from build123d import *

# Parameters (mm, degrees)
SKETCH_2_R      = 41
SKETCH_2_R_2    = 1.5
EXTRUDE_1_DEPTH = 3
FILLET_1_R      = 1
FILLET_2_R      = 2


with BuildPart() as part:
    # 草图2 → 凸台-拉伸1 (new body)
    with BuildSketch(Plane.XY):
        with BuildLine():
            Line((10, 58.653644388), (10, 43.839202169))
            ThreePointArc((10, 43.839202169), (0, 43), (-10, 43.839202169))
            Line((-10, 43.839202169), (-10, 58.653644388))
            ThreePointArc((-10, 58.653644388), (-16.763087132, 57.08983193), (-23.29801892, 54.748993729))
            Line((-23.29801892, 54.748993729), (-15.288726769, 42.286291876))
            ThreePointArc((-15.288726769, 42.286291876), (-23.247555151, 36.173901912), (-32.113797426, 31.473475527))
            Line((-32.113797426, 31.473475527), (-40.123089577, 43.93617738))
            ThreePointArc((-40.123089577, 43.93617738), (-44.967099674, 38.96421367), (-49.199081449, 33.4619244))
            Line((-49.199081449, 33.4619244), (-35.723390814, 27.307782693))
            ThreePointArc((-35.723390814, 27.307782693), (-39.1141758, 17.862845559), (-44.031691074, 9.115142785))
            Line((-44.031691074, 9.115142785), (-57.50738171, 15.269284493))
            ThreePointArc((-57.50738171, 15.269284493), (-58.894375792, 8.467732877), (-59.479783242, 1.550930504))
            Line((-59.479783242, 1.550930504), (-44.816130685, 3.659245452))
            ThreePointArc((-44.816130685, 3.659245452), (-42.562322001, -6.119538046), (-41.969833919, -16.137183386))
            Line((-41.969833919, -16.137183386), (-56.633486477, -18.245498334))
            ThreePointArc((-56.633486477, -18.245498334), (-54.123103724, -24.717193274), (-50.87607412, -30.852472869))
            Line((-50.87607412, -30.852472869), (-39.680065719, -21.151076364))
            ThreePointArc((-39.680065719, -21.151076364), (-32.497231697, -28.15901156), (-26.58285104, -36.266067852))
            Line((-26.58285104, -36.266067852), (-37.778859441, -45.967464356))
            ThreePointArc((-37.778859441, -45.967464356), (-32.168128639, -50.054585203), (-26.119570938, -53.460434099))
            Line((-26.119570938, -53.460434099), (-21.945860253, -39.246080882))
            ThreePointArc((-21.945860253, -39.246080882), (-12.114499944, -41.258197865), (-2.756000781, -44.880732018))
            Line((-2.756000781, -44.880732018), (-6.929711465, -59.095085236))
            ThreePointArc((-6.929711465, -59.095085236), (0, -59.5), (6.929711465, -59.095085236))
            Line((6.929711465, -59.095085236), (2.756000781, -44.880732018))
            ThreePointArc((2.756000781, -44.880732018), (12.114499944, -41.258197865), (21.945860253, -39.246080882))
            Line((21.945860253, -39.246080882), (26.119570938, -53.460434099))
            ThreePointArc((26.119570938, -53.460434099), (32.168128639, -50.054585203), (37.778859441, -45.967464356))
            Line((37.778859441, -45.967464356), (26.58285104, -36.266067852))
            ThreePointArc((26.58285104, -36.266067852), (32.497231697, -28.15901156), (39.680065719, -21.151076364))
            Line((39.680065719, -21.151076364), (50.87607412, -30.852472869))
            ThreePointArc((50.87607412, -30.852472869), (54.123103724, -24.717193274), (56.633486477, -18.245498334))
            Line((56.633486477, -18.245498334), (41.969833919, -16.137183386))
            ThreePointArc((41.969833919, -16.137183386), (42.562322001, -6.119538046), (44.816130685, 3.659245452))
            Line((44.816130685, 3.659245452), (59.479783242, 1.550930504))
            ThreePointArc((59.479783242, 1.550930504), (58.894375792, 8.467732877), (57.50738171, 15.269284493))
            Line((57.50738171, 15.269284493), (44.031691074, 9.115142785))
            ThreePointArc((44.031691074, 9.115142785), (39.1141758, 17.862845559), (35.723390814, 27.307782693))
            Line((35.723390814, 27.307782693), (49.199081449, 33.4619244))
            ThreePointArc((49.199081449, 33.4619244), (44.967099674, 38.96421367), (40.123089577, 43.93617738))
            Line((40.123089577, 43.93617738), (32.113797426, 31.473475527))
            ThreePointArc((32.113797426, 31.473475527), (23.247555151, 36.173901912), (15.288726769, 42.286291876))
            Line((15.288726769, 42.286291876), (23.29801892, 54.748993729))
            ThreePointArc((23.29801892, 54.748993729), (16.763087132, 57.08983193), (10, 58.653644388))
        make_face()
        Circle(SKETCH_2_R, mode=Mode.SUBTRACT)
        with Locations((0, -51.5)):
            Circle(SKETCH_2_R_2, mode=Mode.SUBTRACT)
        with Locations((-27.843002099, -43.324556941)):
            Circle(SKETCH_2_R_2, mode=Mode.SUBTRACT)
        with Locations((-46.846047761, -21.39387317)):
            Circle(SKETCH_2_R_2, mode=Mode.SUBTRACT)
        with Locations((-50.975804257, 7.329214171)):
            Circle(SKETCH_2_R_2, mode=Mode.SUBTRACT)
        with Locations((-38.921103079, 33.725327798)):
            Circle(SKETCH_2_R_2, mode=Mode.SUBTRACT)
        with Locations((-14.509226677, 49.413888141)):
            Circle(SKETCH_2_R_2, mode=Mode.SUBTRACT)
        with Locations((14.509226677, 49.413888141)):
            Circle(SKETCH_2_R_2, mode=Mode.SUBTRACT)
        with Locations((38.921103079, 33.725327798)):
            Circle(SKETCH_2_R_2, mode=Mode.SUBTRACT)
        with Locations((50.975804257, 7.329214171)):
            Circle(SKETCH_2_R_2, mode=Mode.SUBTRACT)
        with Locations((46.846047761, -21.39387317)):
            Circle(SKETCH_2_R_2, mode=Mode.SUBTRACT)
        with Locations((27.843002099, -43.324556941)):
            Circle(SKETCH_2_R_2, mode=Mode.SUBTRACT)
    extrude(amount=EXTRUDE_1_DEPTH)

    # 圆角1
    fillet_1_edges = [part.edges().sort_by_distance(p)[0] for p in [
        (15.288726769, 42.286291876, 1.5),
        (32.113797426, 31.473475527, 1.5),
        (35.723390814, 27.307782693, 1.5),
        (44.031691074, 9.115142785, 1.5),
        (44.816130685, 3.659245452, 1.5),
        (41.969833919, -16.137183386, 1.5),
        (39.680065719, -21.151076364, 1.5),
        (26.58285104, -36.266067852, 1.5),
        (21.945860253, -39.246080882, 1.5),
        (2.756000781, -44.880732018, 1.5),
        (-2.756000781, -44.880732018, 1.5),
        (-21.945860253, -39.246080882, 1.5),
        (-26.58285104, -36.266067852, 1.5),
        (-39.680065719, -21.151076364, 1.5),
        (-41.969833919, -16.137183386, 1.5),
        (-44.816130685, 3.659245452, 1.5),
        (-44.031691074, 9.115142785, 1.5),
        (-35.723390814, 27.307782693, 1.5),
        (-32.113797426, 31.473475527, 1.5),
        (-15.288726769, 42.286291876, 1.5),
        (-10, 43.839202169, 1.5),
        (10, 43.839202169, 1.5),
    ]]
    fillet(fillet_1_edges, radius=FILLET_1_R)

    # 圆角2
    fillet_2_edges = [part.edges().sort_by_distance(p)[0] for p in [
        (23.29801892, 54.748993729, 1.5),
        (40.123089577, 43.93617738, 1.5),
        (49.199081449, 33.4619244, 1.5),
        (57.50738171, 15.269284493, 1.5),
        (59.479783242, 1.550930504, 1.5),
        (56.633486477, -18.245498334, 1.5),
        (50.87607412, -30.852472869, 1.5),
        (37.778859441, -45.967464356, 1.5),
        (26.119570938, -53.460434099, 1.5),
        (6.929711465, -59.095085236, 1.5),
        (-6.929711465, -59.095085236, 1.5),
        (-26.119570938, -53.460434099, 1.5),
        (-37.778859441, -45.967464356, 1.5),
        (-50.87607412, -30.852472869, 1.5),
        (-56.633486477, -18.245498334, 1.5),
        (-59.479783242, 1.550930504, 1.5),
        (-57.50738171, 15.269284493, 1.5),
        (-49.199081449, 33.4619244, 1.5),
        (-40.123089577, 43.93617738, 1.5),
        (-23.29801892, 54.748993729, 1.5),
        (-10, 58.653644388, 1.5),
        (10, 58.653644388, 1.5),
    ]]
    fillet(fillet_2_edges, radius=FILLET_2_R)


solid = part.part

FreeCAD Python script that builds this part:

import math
import FreeCAD as App
import Part
import Sketcher

V = App.Vector


def edges_at(feature, points):
    """Names of the edges that pass closest to the given points."""
    edges = feature.Shape.Edges
    near = lambda p: min(range(len(edges)), key=lambda i: edges[i].distToShape(Part.Vertex(*p))[0])
    return sorted({f"Edge{near(p) + 1}" for p in points})

doc = App.newDocument("Part")
params = doc.addObject("Spreadsheet::Sheet", "Params")
for row, (alias, value) in enumerate([
    ("sketch1_diameter", "3 mm"),
    ("sketch1_diameter2", "82 mm"),
    ("sketch1_radius", "60 mm"),
    ("sketch1_radius2", "59.5 mm"),
    ("pad1_length", "3 mm"),
    ("fillet_radius", "1 mm"),
    ("fillet2_radius", "2 mm"),
], start=1):
    params.set(f"A{row}", alias)
    params.set(f"B{row}", "=" + value)
    params.setAlias(f"B{row}", alias)

body = doc.addObject("PartDesign::Body", "Body")

# Sketch on XY plane
sketch1 = body.newObject("Sketcher::SketchObject", "Sketch")
sketch1.AttachmentSupport = (doc.getObject("XY_Plane"), [""])
sketch1.MapMode = "FlatFace"
sketch1.addGeometry([
    Part.LineSegment(V(10, 58.653644, 0), V(10, 43.839202, 0)),  # 0
    Part.ArcOfCircle(Part.Circle(V(0, 103, 0), V(0, 0, 1), 60), math.radians(-99.594068), math.radians(-80.405932)),  # 1
    Part.LineSegment(V(-10, 43.839202, 0), V(-10, 58.653644, 0)),  # 2
    Part.ArcOfCircle(Part.Circle(V(0, 0, 0), V(0, 0, 1), 59.5), math.radians(99.675463), math.radians(113.05181)),  # 3
    Part.LineSegment(V(-23.298019, 54.748994, 0), V(-15.288727, 42.286292, 0)),  # 4
    Part.ArcOfCircle(Part.Circle(V(-55.686004, 86.649114, 0), V(0, 0, 1), 60), math.radians(-66.866796), math.radians(-47.678659)),  # 5
    Part.LineSegment(V(-32.113797, 31.473476, 0), V(-40.12309, 43.936177, 0)),  # 6
    Part.ArcOfCircle(Part.Circle(V(0, 0, 0), V(0, 0, 1), 59.5), math.radians(132.402735), math.radians(145.779083)),  # 7
    Part.LineSegment(V(-49.199081, 33.461924, 0), V(-35.723391, 27.307783, 0)),  # 8
    Part.ArcOfCircle(Part.Circle(V(-93.692095, 42.787746, 0), V(0, 0, 1), 60), math.radians(-34.139523), math.radians(-14.951386)),  # 9
    Part.LineSegment(V(-44.031691, 9.115143, 0), V(-57.507382, 15.269284, 0)),  # 10
    Part.ArcOfCircle(Part.Circle(V(0, 0, 0), V(0, 0, 1), 59.5), math.radians(165.130008), math.radians(178.506356)),  # 11
    Part.LineSegment(V(-59.479783, 1.550931, 0), V(-44.816131, 3.659245, 0)),  # 12
    Part.ArcOfCircle(Part.Circle(V(-101.951609, -14.658428, 0), V(0, 0, 1), 60), math.radians(-1.41225), math.radians(17.775886)),  # 13
    Part.LineSegment(V(-41.969834, -16.137183, 0), V(-56.633486, -18.245498, 0)),  # 14
    Part.ArcOfCircle(Part.Circle(V(0, 0, 0), V(0, 0, 1), 59.5), math.radians(-162.142719), math.radians(-148.766372)),  # 15
    Part.LineSegment(V(-50.876074, -30.852473, 0), V(-39.680066, -21.151076, 0)),  # 16
    Part.ArcOfCircle(Part.Circle(V(-77.842206, -67.450656, 0), V(0, 0, 1), 60), math.radians(31.315023), math.radians(50.503159)),  # 17
    Part.LineSegment(V(-26.582851, -36.266068, 0), V(-37.778859, -45.967464, 0)),  # 18
    Part.ArcOfCircle(Part.Circle(V(0, 0, 0), V(0, 0, 1), 59.5), math.radians(-129.415447), math.radians(-116.039099)),  # 19
    Part.LineSegment(V(-26.119571, -53.460434, 0), V(-21.94586, -39.246081, 0)),  # 20
    Part.ArcOfCircle(Part.Circle(V(-29.018453, -98.827776, 0), V(0, 0, 1), 60), math.radians(64.042295), math.radians(83.230432)),  # 21
    Part.LineSegment(V(-2.756001, -44.880732, 0), V(-6.929711, -59.095085, 0)),  # 22
    Part.ArcOfCircle(Part.Circle(V(0, 0, 0), V(0, 0, 1), 59.5), math.radians(-96.688174), math.radians(-83.311826)),  # 23
    Part.LineSegment(V(6.929711, -59.095085, 0), V(2.756001, -44.880732, 0)),  # 24
    Part.ArcOfCircle(Part.Circle(V(29.018453, -98.827776, 0), V(0, 0, 1), 60), math.radians(96.769568), math.radians(115.957705)),  # 25
    Part.LineSegment(V(21.94586, -39.246081, 0), V(26.119571, -53.460434, 0)),  # 26
    Part.ArcOfCircle(Part.Circle(V(0, 0, 0), V(0, 0, 1), 59.5), math.radians(-63.960901), math.radians(-50.584553)),  # 27
    Part.LineSegment(V(37.778859, -45.967464, 0), V(26.582851, -36.266068, 0)),  # 28
    Part.ArcOfCircle(Part.Circle(V(77.842206, -67.450656, 0), V(0, 0, 1), 60), math.radians(129.496841), math.radians(148.684977)),  # 29
    Part.LineSegment(V(39.680066, -21.151076, 0), V(50.876074, -30.852473, 0)),  # 30
    Part.ArcOfCircle(Part.Circle(V(0, 0, 0), V(0, 0, 1), 59.5), math.radians(-31.233628), math.radians(-17.857281)),  # 31
    Part.LineSegment(V(56.633486, -18.245498, 0), V(41.969834, -16.137183, 0)),  # 32
    Part.ArcOfCircle(Part.Circle(V(101.951609, -14.658428, 0), V(0, 0, 1), 60), math.radians(162.224114), math.radians(181.41225)),  # 33
    Part.LineSegment(V(44.816131, 3.659245, 0), V(59.479783, 1.550931, 0)),  # 34
    Part.ArcOfCircle(Part.Circle(V(0, 0, 0), V(0, 0, 1), 59.5), math.radians(1.493644), math.radians(14.869992)),  # 35
    Part.LineSegment(V(57.507382, 15.269284, 0), V(44.031691, 9.115143, 0)),  # 36
    Part.ArcOfCircle(Part.Circle(V(93.692095, 42.787746, 0), V(0, 0, 1), 60), math.radians(-165.048614), math.radians(-145.860477)),  # 37
    Part.LineSegment(V(35.723391, 27.307783, 0), V(49.199081, 33.461924, 0)),  # 38
    Part.ArcOfCircle(Part.Circle(V(0, 0, 0), V(0, 0, 1), 59.5), math.radians(34.220917), math.radians(47.597265)),  # 39
    Part.LineSegment(V(40.12309, 43.936177, 0), V(32.113797, 31.473476, 0)),  # 40
    Part.ArcOfCircle(Part.Circle(V(55.686004, 86.649114, 0), V(0, 0, 1), 60), math.radians(-132.321341), math.radians(-113.133204)),  # 41
    Part.LineSegment(V(15.288727, 42.286292, 0), V(23.298019, 54.748994, 0)),  # 42
    Part.ArcOfCircle(Part.Circle(V(0, 0, 0), V(0, 0, 1), 59.5), math.radians(66.94819), math.radians(80.324537)),  # 43
    Part.Circle(V(-27.843002, -43.324557, 0), V(0, 0, 1), 1.5),  # 44
    Part.Circle(V(-46.846048, -21.393873, 0), V(0, 0, 1), 1.5),  # 45
    Part.Circle(V(0, -51.5, 0), V(0, 0, 1), 1.5),  # 46
    Part.Circle(V(27.843002, -43.324557, 0), V(0, 0, 1), 1.5),  # 47
    Part.Circle(V(46.846048, -21.393873, 0), V(0, 0, 1), 1.5),  # 48
    Part.Circle(V(-50.975804, 7.329214, 0), V(0, 0, 1), 1.5),  # 49
    Part.Circle(V(-38.921103, 33.725328, 0), V(0, 0, 1), 1.5),  # 50
    Part.Circle(V(-14.509227, 49.413888, 0), V(0, 0, 1), 1.5),  # 51
    Part.Circle(V(0, 0, 0), V(0, 0, 1), 41),  # 52
    Part.Circle(V(50.975804, 7.329214, 0), V(0, 0, 1), 1.5),  # 53
    Part.Circle(V(14.509227, 49.413888, 0), V(0, 0, 1), 1.5),  # 54
    Part.Circle(V(38.921103, 33.725328, 0), V(0, 0, 1), 1.5),  # 55
], False)
sketch1.addConstraint([
    Sketcher.Constraint("Coincident", 0, 2, 1, 2),
    Sketcher.Constraint("Coincident", 1, 1, 2, 1),
    Sketcher.Constraint("Coincident", 2, 2, 3, 1),
    Sketcher.Constraint("Coincident", 3, 2, 4, 1),
    Sketcher.Constraint("Coincident", 4, 2, 5, 2),
    Sketcher.Constraint("Coincident", 5, 1, 6, 1),
    Sketcher.Constraint("Coincident", 6, 2, 7, 1),
    Sketcher.Constraint("Coincident", 7, 2, 8, 1),
    Sketcher.Constraint("Coincident", 8, 2, 9, 2),
    Sketcher.Constraint("Coincident", 9, 1, 10, 1),
    Sketcher.Constraint("Coincident", 10, 2, 11, 1),
    Sketcher.Constraint("Coincident", 11, 2, 12, 1),
    Sketcher.Constraint("Coincident", 12, 2, 13, 2),
    Sketcher.Constraint("Coincident", 13, 1, 14, 1),
    Sketcher.Constraint("Coincident", 14, 2, 15, 1),
    Sketcher.Constraint("Coincident", 15, 2, 16, 1),
    Sketcher.Constraint("Coincident", 16, 2, 17, 2),
    Sketcher.Constraint("Coincident", 17, 1, 18, 1),
    Sketcher.Constraint("Coincident", 18, 2, 19, 1),
    Sketcher.Constraint("Coincident", 19, 2, 20, 1),
    Sketcher.Constraint("Coincident", 20, 2, 21, 2),
    Sketcher.Constraint("Coincident", 21, 1, 22, 1),
    Sketcher.Constraint("Coincident", 22, 2, 23, 1),
    Sketcher.Constraint("Coincident", 23, 2, 24, 1),
    Sketcher.Constraint("Coincident", 24, 2, 25, 2),
    Sketcher.Constraint("Coincident", 25, 1, 26, 1),
    Sketcher.Constraint("Coincident", 26, 2, 27, 1),
    Sketcher.Constraint("Coincident", 27, 2, 28, 1),
    Sketcher.Constraint("Coincident", 28, 2, 29, 2),
    Sketcher.Constraint("Coincident", 29, 1, 30, 1),
    Sketcher.Constraint("Coincident", 30, 2, 31, 1),
    Sketcher.Constraint("Coincident", 31, 2, 32, 1),
    Sketcher.Constraint("Coincident", 32, 2, 33, 2),
    Sketcher.Constraint("Coincident", 33, 1, 34, 1),
    Sketcher.Constraint("Coincident", 34, 2, 35, 1),
    Sketcher.Constraint("Coincident", 35, 2, 36, 1),
    Sketcher.Constraint("Coincident", 36, 2, 37, 2),
    Sketcher.Constraint("Coincident", 37, 1, 38, 1),
    Sketcher.Constraint("Coincident", 38, 2, 39, 1),
    Sketcher.Constraint("Coincident", 39, 2, 40, 1),
    Sketcher.Constraint("Coincident", 40, 2, 41, 2),
    Sketcher.Constraint("Coincident", 41, 1, 42, 1),
    Sketcher.Constraint("Coincident", 42, 2, 43, 1),
    Sketcher.Constraint("Coincident", 43, 2, 0, 1),
    Sketcher.Constraint("Vertical", 0),
    Sketcher.Constraint("Vertical", 2),
    Sketcher.Constraint("Coincident", 3, 3, -1, 1),
    Sketcher.Constraint("Coincident", 7, 3, -1, 1),
    Sketcher.Constraint("Coincident", 11, 3, -1, 1),
    Sketcher.Constraint("Coincident", 15, 3, -1, 1),
    Sketcher.Constraint("Coincident", 19, 3, -1, 1),
    Sketcher.Constraint("Coincident", 23, 3, -1, 1),
    Sketcher.Constraint("Coincident", 27, 3, -1, 1),
    Sketcher.Constraint("Coincident", 31, 3, -1, 1),
    Sketcher.Constraint("Coincident", 35, 3, -1, 1),
    Sketcher.Constraint("Coincident", 39, 3, -1, 1),
    Sketcher.Constraint("Coincident", 43, 3, -1, 1),
    Sketcher.Constraint("Coincident", 52, 3, -1, 1),
    Sketcher.Constraint("Equal", 1, 5),
    Sketcher.Constraint("Equal", 3, 7),
    Sketcher.Constraint("Equal", 5, 9),
    Sketcher.Constraint("Equal", 7, 11),
    Sketcher.Constraint("Equal", 9, 13),
    Sketcher.Constraint("Equal", 11, 15),
    Sketcher.Constraint("Equal", 13, 17),
    Sketcher.Constraint("Equal", 15, 19),
    Sketcher.Constraint("Equal", 17, 21),
    Sketcher.Constraint("Equal", 19, 23),
    Sketcher.Constraint("Equal", 21, 25),
    Sketcher.Constraint("Equal", 23, 27),
    Sketcher.Constraint("Equal", 25, 29),
    Sketcher.Constraint("Equal", 27, 31),
    Sketcher.Constraint("Equal", 29, 33),
    Sketcher.Constraint("Equal", 31, 35),
    Sketcher.Constraint("Equal", 33, 37),
    Sketcher.Constraint("Equal", 35, 39),
    Sketcher.Constraint("Equal", 37, 41),
    Sketcher.Constraint("Equal", 39, 43),
    Sketcher.Constraint("Equal", 44, 45),
    Sketcher.Constraint("Equal", 45, 46),
    Sketcher.Constraint("Equal", 46, 47),
    Sketcher.Constraint("Equal", 47, 48),
    Sketcher.Constraint("Equal", 48, 49),
    Sketcher.Constraint("Equal", 49, 50),
    Sketcher.Constraint("Equal", 50, 51),
    Sketcher.Constraint("Equal", 51, 53),
    Sketcher.Constraint("Equal", 53, 54),
    Sketcher.Constraint("Equal", 54, 55),
    Sketcher.Constraint("Symmetric", 21, 3, 25, 3, -2),
    Sketcher.Constraint("Symmetric", 17, 3, 29, 3, -2),
    Sketcher.Constraint("Symmetric", 13, 3, 33, 3, -2),
    Sketcher.Constraint("Symmetric", 9, 3, 37, 3, -2),
    Sketcher.Constraint("Symmetric", 5, 3, 41, 3, -2),
    Sketcher.Constraint("Symmetric", 44, 3, 47, 3, -2),
    Sketcher.Constraint("Symmetric", 45, 3, 48, 3, -2),
    Sketcher.Constraint("Symmetric", 49, 3, 53, 3, -2),
    Sketcher.Constraint("Symmetric", 51, 3, 54, 3, -2),
    Sketcher.Constraint("Symmetric", 50, 3, 55, 3, -2),
    Sketcher.Constraint("Symmetric", 0, 2, 1, 1, -2),
    Sketcher.Constraint("PointOnObject", 46, 3, -2),
    Sketcher.Constraint("Parallel", 4, 6),
    Sketcher.Constraint("Parallel", 8, 10),
    Sketcher.Constraint("Parallel", 12, 14),
    Sketcher.Constraint("Parallel", 16, 18),
    Sketcher.Constraint("Parallel", 20, 22),
    Sketcher.Constraint("Parallel", 24, 26),
    Sketcher.Constraint("Parallel", 28, 30),
    Sketcher.Constraint("Parallel", 32, 34),
    Sketcher.Constraint("Parallel", 36, 38),
    Sketcher.Constraint("Parallel", 40, 42),
    Sketcher.Constraint("Horizontal", 22, 2, 23, 2),
    Sketcher.Constraint("Horizontal", 21, 1, 24, 2),
    Sketcher.Constraint("Horizontal", 20, 2, 25, 1),
    Sketcher.Constraint("Horizontal", 18, 2, 27, 2),
    Sketcher.Constraint("Horizontal", 17, 1, 28, 2),
    Sketcher.Constraint("Horizontal", 16, 2, 29, 1),
    Sketcher.Constraint("Horizontal", 14, 2, 31, 2),
    Sketcher.Constraint("Horizontal", 13, 1, 32, 2),
    Sketcher.Constraint("Horizontal", 12, 2, 33, 1),
    Sketcher.Constraint("Horizontal", 10, 2, 35, 2),
    Sketcher.Constraint("Horizontal", 9, 1, 36, 2),
    Sketcher.Constraint("Horizontal", 8, 2, 37, 1),
    Sketcher.Constraint("Horizontal", 6, 2, 39, 2),
    Sketcher.Constraint("Horizontal", 5, 1, 40, 2),
    Sketcher.Constraint("Horizontal", 4, 2, 41, 1),
    Sketcher.Constraint("Equal", 4, 6),
    Sketcher.Constraint("Equal", 6, 8),
    Sketcher.Constraint("Equal", 8, 10),
    Sketcher.Constraint("Equal", 10, 12),
    Sketcher.Constraint("Equal", 12, 14),
    Sketcher.Constraint("Equal", 14, 16),
    Sketcher.Constraint("Equal", 16, 18),
    Sketcher.Constraint("Equal", 18, 20),
    Sketcher.Constraint("Equal", 20, 22),
    Sketcher.Constraint("Diameter", 44, 3.0),
    Sketcher.Constraint("Diameter", 52, 82.0),
    Sketcher.Constraint("Radius", 1, 60.0),
    Sketcher.Constraint("Radius", 3, 59.5),
    Sketcher.Constraint("DistanceY", -1, 1, 1, 3, 103.0),
    Sketcher.Constraint("DistanceX", -1, 1, 0, 2, 10.0),
    Sketcher.Constraint("DistanceY", 46, 3, -1, 1, 51.5),
    Sketcher.Constraint("DistanceX", 21, 1, -1, 1, 2.756001),
    Sketcher.Constraint("DistanceY", 14, 2, -1, 1, 18.245498),
    Sketcher.Constraint("DistanceX", 13, 3, -1, 1, 101.951609),
    Sketcher.Constraint("DistanceY", 13, 3, -1, 1, 14.658428),
    Sketcher.Constraint("DistanceY", -1, 1, 51, 3, 49.413888),
    Sketcher.Constraint("DistanceX", 3, 2, -1, 1, 23.298019),
    Sketcher.Constraint("DistanceY", -1, 1, 4, 2, 42.286292),
    Sketcher.Constraint("DistanceX", 6, 2, -1, 1, 40.12309),
    Sketcher.Constraint("DistanceX", 7, 2, -1, 1, 49.199081),
    Sketcher.Constraint("DistanceX", 8, 2, -1, 1, 35.723391),
    Sketcher.Constraint("DistanceX", 9, 1, -1, 1, 44.031691),
    Sketcher.Constraint("DistanceY", -1, 1, 11, 2, 1.550931),
    Sketcher.Constraint("DistanceX", 17, 1, -1, 1, 26.582851),
    Sketcher.Constraint("DistanceX", 18, 2, -1, 1, 37.778859),
    Sketcher.Constraint("DistanceX", 19, 2, -1, 1, 26.119571),
    Sketcher.Constraint("DistanceX", 20, 2, -1, 1, 21.94586),
    Sketcher.Constraint("DistanceX", 17, 3, -1, 1, 77.842206),
    Sketcher.Constraint("DistanceX", 44, 3, -1, 1, 27.843002),
    Sketcher.Constraint("DistanceY", 44, 3, -1, 1, 43.324557),
    Sketcher.Constraint("DistanceX", 45, 3, -1, 1, 46.846048),
    Sketcher.Constraint("DistanceY", 45, 3, -1, 1, 21.393873),
    Sketcher.Constraint("DistanceX", 49, 3, -1, 1, 50.975804),
    Sketcher.Constraint("DistanceY", -1, 1, 49, 3, 7.329214),
    Sketcher.Constraint("DistanceX", 50, 3, -1, 1, 38.921103),
    Sketcher.Constraint("DistanceY", -1, 1, 50, 3, 33.725328),
    Sketcher.Constraint("DistanceX", 51, 3, -1, 1, 14.509227),
])
sketch1.setExpression("Constraints[134]", "Params.sketch1_diameter")
sketch1.setExpression("Constraints[135]", "Params.sketch1_diameter2")
sketch1.setExpression("Constraints[136]", "Params.sketch1_radius")
sketch1.setExpression("Constraints[137]", "Params.sketch1_radius2")
pad1 = body.newObject("PartDesign::Pad", "Pad")
pad1.Profile = sketch1
pad1.setExpression("Length", "Params.pad1_length")
doc.recompute()

fillet = body.newObject("PartDesign::Fillet", "Fillet")
fillet.Base = (pad1, edges_at(pad1, [
    (15.289, 42.286, 1.5),
    (32.114, 31.473, 1.5),
    (35.723, 27.308, 1.5),
    (44.032, 9.115, 1.5),
    (44.816, 3.659, 1.5),
    (41.97, -16.137, 1.5),
    (39.68, -21.151, 1.5),
    (26.583, -36.266, 1.5),
    (21.946, -39.246, 1.5),
    (2.756, -44.881, 1.5),
    (-2.756, -44.881, 1.5),
    (-21.946, -39.246, 1.5),
    (-26.583, -36.266, 1.5),
    (-39.68, -21.151, 1.5),
    (-41.97, -16.137, 1.5),
    (-44.816, 3.659, 1.5),
    (-44.032, 9.115, 1.5),
    (-35.723, 27.308, 1.5),
    (-32.114, 31.473, 1.5),
    (-15.289, 42.286, 1.5),
    (-10, 43.839, 1.5),
    (10, 43.839, 1.5),
]))
fillet.setExpression("Radius", "Params.fillet_radius")
doc.recompute()

fillet2 = body.newObject("PartDesign::Fillet", "Fillet001")
fillet2.Base = (fillet, edges_at(fillet, [
    (23.298, 54.749, 1.5),
    (40.123, 43.936, 1.5),
    (49.199, 33.462, 1.5),
    (57.507, 15.269, 1.5),
    (59.48, 1.551, 1.5),
    (56.633, -18.245, 1.5),
    (50.876, -30.852, 1.5),
    (37.779, -45.967, 1.5),
    (26.12, -53.46, 1.5),
    (6.93, -59.095, 1.5),
    (-6.93, -59.095, 1.5),
    (-26.12, -53.46, 1.5),
    (-37.779, -45.967, 1.5),
    (-50.876, -30.852, 1.5),
    (-56.633, -18.245, 1.5),
    (-59.48, 1.551, 1.5),
    (-57.507, 15.269, 1.5),
    (-49.199, 33.462, 1.5),
    (-40.123, 43.936, 1.5),
    (-23.298, 54.749, 1.5),
    (-10, 58.654, 1.5),
    (10, 58.654, 1.5),
]))
fillet2.setExpression("Radius", "Params.fillet2_radius")

doc.recompute()
